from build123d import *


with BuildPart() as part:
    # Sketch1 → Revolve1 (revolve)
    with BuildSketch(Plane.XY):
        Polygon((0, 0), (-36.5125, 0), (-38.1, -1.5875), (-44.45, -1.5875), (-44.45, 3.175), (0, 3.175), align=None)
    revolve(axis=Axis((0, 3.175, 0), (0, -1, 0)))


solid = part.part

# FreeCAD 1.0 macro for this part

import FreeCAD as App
import Part
import Sketcher
from FreeCAD import Vector
Q = App.Units.Quantity

doc = App.newDocument("Part")
params = doc.addObject("Spreadsheet::Sheet", "Params")
for row, (alias, value) in enumerate([
    ("sketch1_width", "1.75 in"),
    ("sketch1_width2", "0.25 in"),
    ("sketch1_width3", "1.4375 in"),
    ("sketch1_height", "0.125 in"),
    ("revolution_angle", "360 deg"),
], start=1):
    params.set(f"A{row}", alias)
    params.set(f"B{row}", "=" + value)
    params.setAlias(f"B{row}", alias)

body = doc.addObject("PartDesign::Body", "Body")

sketch1 = doc.addObject("Sketcher::SketchObject", "Sketch")
body.addObject(sketch1)
sketch1.AttachmentSupport = (doc.XY_Plane, [""])
sketch1.MapMode = "FlatFace"
sketch1.addGeometry(Part.LineSegment(Vector(-36.5, 0, 0), Vector(0, 0, 0)), False)
sketch1.addGeometry(Part.LineSegment(Vector(0, 0, 0), Vector(0, 3.2, 0)), False)
sketch1.addGeometry(Part.LineSegment(Vector(0, 3.2, 0), Vector(-44.5, 3.2, 0)), False)
sketch1.addGeometry(Part.LineSegment(Vector(-44.5, 3.2, 0), Vector(-44.5, -1.6, 0)), False)
sketch1.addGeometry(Part.LineSegment(Vector(-44.5, -1.6, 0), Vector(-38.1, -1.6, 0)), False)
sketch1.addGeometry(Part.LineSegment(Vector(-38.1, -1.6, 0), Vector(-36.5, 0, 0)), False)
sketch1.addConstraint(Sketcher.Constraint("Coincident", 0, 2, 1, 1))
sketch1.addConstraint(Sketcher.Constraint("Coincident", 1, 2, 2, 1))
sketch1.addConstraint(Sketcher.Constraint("Coincident", 2, 2, 3, 1))
sketch1.addConstraint(Sketcher.Constraint("Coincident", 3, 2, 4, 1))
sketch1.addConstraint(Sketcher.Constraint("Coincident", 4, 2, 5, 1))
sketch1.addConstraint(Sketcher.Constraint("Coincident", 5, 2, 0, 1))
sketch1.addConstraint(Sketcher.Constraint("Horizontal", 0))
sketch1.addConstraint(Sketcher.Constraint("Vertical", 1))
sketch1.addConstraint(Sketcher.Constraint("Horizontal", 2))
sketch1.addConstraint(Sketcher.Constraint("Vertical", 3))
sketch1.addConstraint(Sketcher.Constraint("Horizontal", 4))
sketch1.addConstraint(Sketcher.Constraint("Coincident", 0, 2, -1, 1))
sketch1.addConstraint(Sketcher.Constraint("Angle", 5, Q("45 deg")))
sketch1.addConstraint(Sketcher.Constraint("DistanceX", 2, 2, 2, 1, Q("1.75 in")))
sketch1.addConstraint(Sketcher.Constraint("DistanceX", 4, 1, 4, 2, Q("0.25 in")))
sketch1.addConstraint(Sketcher.Constraint("DistanceX", 0, 1, 0, 2, Q("1.4375 in")))
sketch1.addConstraint(Sketcher.Constraint("DistanceY", 1, 1, 1, 2, Q("0.125 in")))
sketch1.setExpression("Constraints[13]", "Params.sketch1_width")
sketch1.setExpression("Constraints[14]", "Params.sketch1_width2")
sketch1.setExpression("Constraints[15]", "Params.sketch1_width3")
sketch1.setExpression("Constraints[16]", "Params.sketch1_height")
revolution = doc.addObject("PartDesign::Revolution", "Revolution")
body.addObject(revolution)
revolution.Profile = sketch1
revolution.ReferenceAxis = (sketch1, ["V_Axis"])
revolution.setExpression("Angle", "Params.revolution_angle")

doc.recompute()
